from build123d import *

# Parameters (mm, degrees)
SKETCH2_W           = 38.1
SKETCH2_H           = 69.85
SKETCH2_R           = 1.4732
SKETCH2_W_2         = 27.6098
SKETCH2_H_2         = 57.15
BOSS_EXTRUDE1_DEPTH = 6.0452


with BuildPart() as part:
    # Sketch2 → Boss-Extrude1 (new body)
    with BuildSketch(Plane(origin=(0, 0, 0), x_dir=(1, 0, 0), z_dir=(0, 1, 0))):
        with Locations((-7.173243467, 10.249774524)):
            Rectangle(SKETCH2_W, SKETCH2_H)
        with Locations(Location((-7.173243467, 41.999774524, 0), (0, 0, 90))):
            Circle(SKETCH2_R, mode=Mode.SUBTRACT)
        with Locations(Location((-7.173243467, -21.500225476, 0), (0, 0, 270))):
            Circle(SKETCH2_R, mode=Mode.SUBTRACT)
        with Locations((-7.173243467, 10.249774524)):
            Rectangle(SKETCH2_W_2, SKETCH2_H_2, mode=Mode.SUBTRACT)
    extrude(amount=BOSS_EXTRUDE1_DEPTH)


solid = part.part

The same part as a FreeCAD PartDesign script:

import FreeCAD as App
import Part
import Sketcher
from FreeCAD import Vector
Q = App.Units.Quantity

doc = App.newDocument("Part")
body = doc.addObject("PartDesign::Body", "Body")

sketch1 = body.newObject("Sketcher::SketchObject", "Sketch")
sketch1.AttachmentSupport = (doc.getObject("XZ_Plane"), [""])
sketch1.MapMode = "FlatFace"
sketch1.addGeometry(Part.LineSegment(Vector(-26.2, -45.2, 0), Vector(-26.2, 24.7, 0)), False)
sketch1.addGeometry(Part.LineSegment(Vector(-26.2, 24.7, 0), Vector(11.9, 24.7, 0)), False)
sketch1.addGeometry(Part.LineSegment(Vector(11.9, 24.7, 0), Vector(11.9, -45.2, 0)), False)
sketch1.addGeometry(Part.LineSegment(Vector(11.9, -45.2, 0), Vector(-26.2, -45.2, 0)), False)
sketch1.addGeometry(Part.Circle(Vector(-7.2, 21.5, 0), Vector(0, 0, 1), 1.5), False)
sketch1.addGeometry(Part.LineSegment(Vector(6.6, 18.3, 0), Vector(-21, 18.3, 0)), False)
sketch1.addGeometry(Part.LineSegment(Vector(-21, 18.3, 0), Vector(-21, -38.8, 0)), False)
sketch1.addGeometry(Part.LineSegment(Vector(-21, -38.8, 0), Vector(6.6, -38.8, 0)), False)
sketch1.addGeometry(Part.LineSegment(Vector(6.6, -38.8, 0), Vector(6.6, 18.3, 0)), False)
sketch1.addGeometry(Part.Circle(Vector(-7.2, -42, 0), Vector(0, 0, 1), 1.5), False)
sketch1.addConstraint(Sketcher.Constraint("Coincident", 0, 2, 1, 1))
sketch1.addConstraint(Sketcher.Constraint("Coincident", 1, 2, 2, 1))
sketch1.addConstraint(Sketcher.Constraint("Coincident", 2, 2, 3, 1))
sketch1.addConstraint(Sketcher.Constraint("Coincident", 3, 2, 0, 1))
sketch1.addConstraint(Sketcher.Constraint("Coincident", 5, 2, 6, 1))
sketch1.addConstraint(Sketcher.Constraint("Coincident", 6, 2, 7, 1))
sketch1.addConstraint(Sketcher.Constraint("Coincident", 7, 2, 8, 1))
sketch1.addConstraint(Sketcher.Constraint("Coincident", 8, 2, 5, 1))
sketch1.addConstraint(Sketcher.Constraint("Vertical", 0))
sketch1.addConstraint(Sketcher.Constraint("Horizontal", 1))
sketch1.addConstraint(Sketcher.Constraint("Vertical", 2))
sketch1.addConstraint(Sketcher.Constraint("Horizontal", 3))
sketch1.addConstraint(Sketcher.Constraint("Horizontal", 5))
sketch1.addConstraint(Sketcher.Constraint("Vertical", 6))
sketch1.addConstraint(Sketcher.Constraint("Horizontal", 7))
sketch1.addConstraint(Sketcher.Constraint("Vertical", 8))
sketch1.addConstraint(Sketcher.Constraint("Equal", 4, 9))
sketch1.addConstraint(Sketcher.Constraint("Vertical", 4, 3, 9, 3))
sketch1.addConstraint(Sketcher.Constraint("Diameter", 4, Q("0.116 in")))
sketch1.addConstraint(Sketcher.Constraint("DistanceX", 1, 1, 1, 2, Q("1.5 in")))
sketch1.addConstraint(Sketcher.Constraint("DistanceY", 0, 1, 0, 2, Q("2.75 in")))
sketch1.addConstraint(Sketcher.Constraint("DistanceY", 6, 2, 6, 1, Q("2.25 in")))
sketch1.addConstraint(Sketcher.Constraint("DistanceY", 9, 3, 4, 3, Q("2.5 in")))
sketch1.addConstraint(Sketcher.Constraint("DistanceY", 3, 2, 5, 2, Q("2.5 in")))
sketch1.addConstraint(Sketcher.Constraint("DistanceX", 5, 2, 5, 1, Q("1.087 in")))
sketch1.addConstraint(Sketcher.Constraint("DistanceX", 0, 2, 4, 3, Q("0.75 in")))
sketch1.addConstraint(Sketcher.Constraint("DistanceY", 4, 3, 0, 2, Q("0.125 in")))
sketch1.addConstraint(Sketcher.Constraint("DistanceX", 0, 2, 5, 2, Q("0.2065 in")))
sketch1.addConstraint(Sketcher.Constraint("DistanceX", 4, 3, -1, 1, 7.173243))
sketch1.addConstraint(Sketcher.Constraint("DistanceY", -1, 1, 4, 3, 21.500225))
pad1 = body.newObject("PartDesign::Pad", "Pad")
pad1.Profile = sketch1
pad1.Length = Q("0.238 in")
pad1.Reversed = True

doc.recompute()
